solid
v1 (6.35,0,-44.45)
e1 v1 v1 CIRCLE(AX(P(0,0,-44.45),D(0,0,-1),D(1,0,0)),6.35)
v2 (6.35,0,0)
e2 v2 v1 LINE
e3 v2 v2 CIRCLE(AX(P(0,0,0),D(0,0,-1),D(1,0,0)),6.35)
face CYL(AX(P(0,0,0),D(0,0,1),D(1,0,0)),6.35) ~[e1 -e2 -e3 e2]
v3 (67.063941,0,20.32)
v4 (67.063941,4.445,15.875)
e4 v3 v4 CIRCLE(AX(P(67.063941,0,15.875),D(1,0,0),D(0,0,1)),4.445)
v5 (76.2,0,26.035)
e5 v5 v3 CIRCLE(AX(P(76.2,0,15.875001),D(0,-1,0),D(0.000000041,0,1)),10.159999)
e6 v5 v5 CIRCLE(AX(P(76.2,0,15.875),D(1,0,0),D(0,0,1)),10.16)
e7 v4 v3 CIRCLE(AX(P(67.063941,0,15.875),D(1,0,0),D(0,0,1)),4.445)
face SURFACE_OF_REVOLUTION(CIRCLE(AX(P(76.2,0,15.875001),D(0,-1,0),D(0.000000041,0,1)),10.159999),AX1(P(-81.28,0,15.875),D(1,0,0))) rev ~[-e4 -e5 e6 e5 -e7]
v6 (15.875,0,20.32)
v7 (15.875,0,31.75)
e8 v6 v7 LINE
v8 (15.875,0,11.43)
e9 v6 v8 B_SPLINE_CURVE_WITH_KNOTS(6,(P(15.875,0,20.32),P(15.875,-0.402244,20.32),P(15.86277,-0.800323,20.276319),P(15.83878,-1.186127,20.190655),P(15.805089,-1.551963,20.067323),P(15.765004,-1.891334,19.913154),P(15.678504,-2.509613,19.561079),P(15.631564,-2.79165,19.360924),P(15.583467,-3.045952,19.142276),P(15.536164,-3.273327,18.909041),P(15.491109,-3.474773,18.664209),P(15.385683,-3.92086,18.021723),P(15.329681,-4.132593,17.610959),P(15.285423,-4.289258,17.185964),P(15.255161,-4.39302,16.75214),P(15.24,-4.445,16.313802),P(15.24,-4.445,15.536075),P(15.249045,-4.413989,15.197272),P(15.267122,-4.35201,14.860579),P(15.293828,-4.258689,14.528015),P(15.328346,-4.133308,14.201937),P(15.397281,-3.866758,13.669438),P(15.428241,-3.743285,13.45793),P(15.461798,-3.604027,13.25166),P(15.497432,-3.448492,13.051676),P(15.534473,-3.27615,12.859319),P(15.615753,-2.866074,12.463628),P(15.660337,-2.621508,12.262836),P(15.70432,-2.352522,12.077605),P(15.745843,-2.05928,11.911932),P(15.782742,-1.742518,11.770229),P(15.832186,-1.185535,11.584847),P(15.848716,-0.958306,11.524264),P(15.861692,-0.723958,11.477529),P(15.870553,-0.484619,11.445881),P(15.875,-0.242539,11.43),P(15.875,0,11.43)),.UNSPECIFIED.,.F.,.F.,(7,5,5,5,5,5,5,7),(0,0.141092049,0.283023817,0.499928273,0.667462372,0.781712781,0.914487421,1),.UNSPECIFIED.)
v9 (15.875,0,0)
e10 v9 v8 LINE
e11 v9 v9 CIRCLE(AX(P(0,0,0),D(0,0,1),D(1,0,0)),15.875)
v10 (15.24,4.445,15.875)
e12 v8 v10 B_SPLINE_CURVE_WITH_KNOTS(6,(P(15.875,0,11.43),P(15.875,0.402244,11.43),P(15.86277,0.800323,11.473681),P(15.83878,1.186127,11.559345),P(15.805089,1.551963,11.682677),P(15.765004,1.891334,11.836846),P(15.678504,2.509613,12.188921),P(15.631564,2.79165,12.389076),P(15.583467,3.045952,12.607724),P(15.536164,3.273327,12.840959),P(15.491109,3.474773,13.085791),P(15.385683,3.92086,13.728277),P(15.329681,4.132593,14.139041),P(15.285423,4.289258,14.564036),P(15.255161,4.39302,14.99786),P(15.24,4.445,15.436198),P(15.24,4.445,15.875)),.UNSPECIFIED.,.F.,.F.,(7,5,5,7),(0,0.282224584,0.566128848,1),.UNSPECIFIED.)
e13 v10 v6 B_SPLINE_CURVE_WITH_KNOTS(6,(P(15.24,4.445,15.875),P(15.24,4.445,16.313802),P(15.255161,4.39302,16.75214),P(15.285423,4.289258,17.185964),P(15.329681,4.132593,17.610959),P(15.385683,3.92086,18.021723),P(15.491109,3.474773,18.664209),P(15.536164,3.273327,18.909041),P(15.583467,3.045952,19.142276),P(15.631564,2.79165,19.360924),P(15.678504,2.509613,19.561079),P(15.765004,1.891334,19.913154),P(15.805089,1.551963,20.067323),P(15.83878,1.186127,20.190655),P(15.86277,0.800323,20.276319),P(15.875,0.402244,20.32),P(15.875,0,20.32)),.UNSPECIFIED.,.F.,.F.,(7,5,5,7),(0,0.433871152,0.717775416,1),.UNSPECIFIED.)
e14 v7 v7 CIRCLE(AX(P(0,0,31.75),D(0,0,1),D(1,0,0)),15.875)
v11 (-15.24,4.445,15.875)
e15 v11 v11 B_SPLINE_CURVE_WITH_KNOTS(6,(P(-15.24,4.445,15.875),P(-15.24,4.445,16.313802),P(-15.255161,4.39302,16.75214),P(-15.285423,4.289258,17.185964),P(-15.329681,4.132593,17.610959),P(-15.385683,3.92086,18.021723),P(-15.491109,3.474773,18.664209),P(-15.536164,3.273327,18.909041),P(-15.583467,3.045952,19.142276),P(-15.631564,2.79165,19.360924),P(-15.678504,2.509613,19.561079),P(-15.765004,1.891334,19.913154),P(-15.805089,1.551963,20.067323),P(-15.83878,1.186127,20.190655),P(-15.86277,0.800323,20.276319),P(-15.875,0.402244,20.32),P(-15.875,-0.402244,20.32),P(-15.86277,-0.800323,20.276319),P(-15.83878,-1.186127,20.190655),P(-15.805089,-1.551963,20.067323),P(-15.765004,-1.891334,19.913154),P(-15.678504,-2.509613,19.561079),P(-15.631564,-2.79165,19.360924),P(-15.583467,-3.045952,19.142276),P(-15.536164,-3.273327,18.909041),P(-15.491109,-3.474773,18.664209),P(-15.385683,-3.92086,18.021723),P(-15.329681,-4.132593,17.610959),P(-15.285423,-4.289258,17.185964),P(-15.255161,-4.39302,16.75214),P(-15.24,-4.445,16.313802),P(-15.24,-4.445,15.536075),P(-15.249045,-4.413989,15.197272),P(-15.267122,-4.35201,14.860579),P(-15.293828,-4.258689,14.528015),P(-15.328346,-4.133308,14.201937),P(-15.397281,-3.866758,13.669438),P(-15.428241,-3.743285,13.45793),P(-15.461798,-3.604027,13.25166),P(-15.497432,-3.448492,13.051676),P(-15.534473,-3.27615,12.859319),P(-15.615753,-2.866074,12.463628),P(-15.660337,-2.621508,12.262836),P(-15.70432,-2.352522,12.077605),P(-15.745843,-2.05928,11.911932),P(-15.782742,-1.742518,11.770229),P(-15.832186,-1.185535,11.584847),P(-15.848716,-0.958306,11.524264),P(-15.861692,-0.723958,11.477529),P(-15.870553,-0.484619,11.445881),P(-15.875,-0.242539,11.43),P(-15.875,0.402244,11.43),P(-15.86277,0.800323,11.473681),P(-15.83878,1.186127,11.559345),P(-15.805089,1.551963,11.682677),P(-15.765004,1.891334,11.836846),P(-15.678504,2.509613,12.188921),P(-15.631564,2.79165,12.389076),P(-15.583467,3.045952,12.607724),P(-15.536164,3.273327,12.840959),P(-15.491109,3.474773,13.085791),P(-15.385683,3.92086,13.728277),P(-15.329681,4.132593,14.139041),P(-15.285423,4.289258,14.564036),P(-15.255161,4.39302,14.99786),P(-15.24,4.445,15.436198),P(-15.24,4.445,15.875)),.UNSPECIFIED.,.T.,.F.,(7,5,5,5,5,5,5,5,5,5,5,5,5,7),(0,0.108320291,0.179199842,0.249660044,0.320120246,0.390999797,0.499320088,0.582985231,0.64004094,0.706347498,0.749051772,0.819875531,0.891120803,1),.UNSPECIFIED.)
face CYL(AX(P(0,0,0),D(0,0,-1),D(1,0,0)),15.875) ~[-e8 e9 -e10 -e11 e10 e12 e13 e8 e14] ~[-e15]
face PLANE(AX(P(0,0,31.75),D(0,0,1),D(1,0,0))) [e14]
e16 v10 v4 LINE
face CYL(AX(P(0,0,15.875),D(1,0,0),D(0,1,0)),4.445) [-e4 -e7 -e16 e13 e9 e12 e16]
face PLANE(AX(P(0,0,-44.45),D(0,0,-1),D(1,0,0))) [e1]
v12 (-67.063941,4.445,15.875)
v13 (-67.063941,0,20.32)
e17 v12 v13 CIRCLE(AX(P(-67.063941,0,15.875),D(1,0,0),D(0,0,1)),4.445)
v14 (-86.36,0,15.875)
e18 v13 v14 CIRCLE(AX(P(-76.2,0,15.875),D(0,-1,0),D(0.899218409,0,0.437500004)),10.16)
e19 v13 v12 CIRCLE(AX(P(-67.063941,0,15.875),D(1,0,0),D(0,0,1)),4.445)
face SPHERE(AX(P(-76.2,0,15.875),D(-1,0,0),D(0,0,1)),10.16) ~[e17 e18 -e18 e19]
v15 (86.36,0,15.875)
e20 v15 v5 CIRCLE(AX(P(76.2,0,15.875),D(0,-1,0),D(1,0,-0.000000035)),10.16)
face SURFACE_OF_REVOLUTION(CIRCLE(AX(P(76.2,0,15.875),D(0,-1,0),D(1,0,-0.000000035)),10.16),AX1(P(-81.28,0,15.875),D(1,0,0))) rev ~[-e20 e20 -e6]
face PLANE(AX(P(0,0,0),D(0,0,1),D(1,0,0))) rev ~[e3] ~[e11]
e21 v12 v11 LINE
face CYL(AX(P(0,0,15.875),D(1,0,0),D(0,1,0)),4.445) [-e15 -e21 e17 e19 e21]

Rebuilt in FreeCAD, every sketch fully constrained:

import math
import FreeCAD as App
import Part
import Sketcher
Q = App.Units.Quantity

doc = App.newDocument("Part")
body = doc.addObject("PartDesign::Body", "Body")

# Sketch on XY plane
sketch1 = body.newObject("Sketcher::SketchObject", "Sketch")
sketch1.AttachmentSupport = (doc.getObject("XY_Plane"), [""])
sketch1.MapMode = "FlatFace"
sketch1.addGeometry(Part.Circle(App.Vector(0, 0, 0), App.Vector(0, 0, 1), 16), False)
sketch1.addConstraint(Sketcher.Constraint("Coincident", 0, 3, -1, 1))
sketch1.addConstraint(Sketcher.Constraint("Diameter", 0, Q("1.25 in")))
pad1 = body.newObject("PartDesign::Pad", "Pad")
pad1.Profile = sketch1
pad1.Length = Q("1.25 in")

# Sketch on XY plane
sketch2 = body.newObject("Sketcher::SketchObject", "Sketch001")
sketch2.AttachmentSupport = (doc.getObject("XY_Plane"), [""])
sketch2.MapMode = "FlatFace"
sketch2.addGeometry(Part.Circle(App.Vector(0, 0, 0), App.Vector(0, 0, 1), 6), False)
sketch2.addConstraint(Sketcher.Constraint("Coincident", 0, 3, -1, 1))
sketch2.addConstraint(Sketcher.Constraint("Diameter", 0, Q("0.5 in")))
pad2 = body.newObject("PartDesign::Pad", "Pad001")
pad2.Profile = sketch2
pad2.Length = Q("1.75 in")
pad2.Reversed = True

# Sketch on YZ plane
sketch3 = body.newObject("Sketcher::SketchObject", "Sketch002")
sketch3.AttachmentSupport = (doc.getObject("YZ_Plane"), [""])
sketch3.MapMode = "FlatFace"
sketch3.addGeometry(Part.Circle(App.Vector(0, 15.9, 0), App.Vector(0, 0, 1), 4.4), False)
sketch3.addConstraint(Sketcher.Constraint("PointOnObject", 0, 3, -2))
sketch3.addConstraint(Sketcher.Constraint("Diameter", 0, Q("0.35 in")))
sketch3.addConstraint(Sketcher.Constraint("DistanceY", -1, 1, 0, 3, Q("0.625 in")))
pad3 = body.newObject("PartDesign::Pad", "Pad002")
pad3.Profile = sketch3
pad3.Length = Q("6 in")
pad3.Midplane = True

# Sketch on XZ plane
sketch4 = body.newObject("Sketcher::SketchObject", "Sketch003")
sketch4.AttachmentSupport = (doc.getObject("XZ_Plane"), [""])
sketch4.MapMode = "FlatFace"
sketch4.addGeometry(Part.LineSegment(App.Vector(-76.2, 15.9, 0), App.Vector(-76.2, 20.3, 0)), False)
sketch4.addGeometry(Part.LineSegment(App.Vector(-76.2, 20.3, 0), App.Vector(-67.1, 20.3, 0)), False)
sketch4.addGeometry(Part.ArcOfCircle(Part.Circle(App.Vector(-76.2, 15.9, 0), App.Vector(0, 0, 1), 10.2), math.radians(26), math.radians(180)), False)
sketch4.addGeometry(Part.LineSegment(App.Vector(-86.4, 15.9, 0), App.Vector(-76.2, 15.9, 0)), False)
sketch4.addGeometry(Part.LineSegment(App.Vector(76.2, 20.3, 0), App.Vector(76.2, 15.9, 0)), False)
sketch4.addGeometry(Part.LineSegment(App.Vector(76.2, 15.9, 0), App.Vector(86.4, 15.9, 0)), False)
sketch4.addGeometry(Part.ArcOfCircle(Part.Circle(App.Vector(76.2, 15.9, 0), App.Vector(0, 0, 1), 10.2), math.radians(0), math.radians(90)), False)
sketch4.addGeometry(Part.ArcOfCircle(Part.Circle(App.Vector(76.2, 15.9, 0), App.Vector(0, 0, 1), 10.2), math.radians(90), math.radians(154)), False)
sketch4.addGeometry(Part.LineSegment(App.Vector(67.1, 20.3, 0), App.Vector(76.2, 20.3, 0)), False)
sketch4.addGeometry(Part.LineSegment(App.Vector(-86.4, 15.9, 0), App.Vector(86.4, 15.9, 0)), True)  # axis
sketch4.addConstraint(Sketcher.Constraint("Coincident", 0, 2, 1, 1))
sketch4.addConstraint(Sketcher.Constraint("Coincident", 1, 2, 2, 1))
sketch4.addConstraint(Sketcher.Constraint("Coincident", 2, 2, 3, 1))
sketch4.addConstraint(Sketcher.Constraint("Coincident", 3, 2, 0, 1))
sketch4.addConstraint(Sketcher.Constraint("Coincident", 4, 2, 5, 1))
sketch4.addConstraint(Sketcher.Constraint("Coincident", 5, 2, 6, 1))
sketch4.addConstraint(Sketcher.Constraint("Tangent", 6, 2, 7, 1))
sketch4.addConstraint(Sketcher.Constraint("Coincident", 7, 2, 8, 1))
sketch4.addConstraint(Sketcher.Constraint("Coincident", 8, 2, 4, 1))
sketch4.addConstraint(Sketcher.Constraint("Vertical", 0))
sketch4.addConstraint(Sketcher.Constraint("Horizontal", 1))
sketch4.addConstraint(Sketcher.Constraint("Horizontal", 3))
sketch4.addConstraint(Sketcher.Constraint("Vertical", 4))
sketch4.addConstraint(Sketcher.Constraint("Horizontal", 5))
sketch4.addConstraint(Sketcher.Constraint("Horizontal", 8))
sketch4.addConstraint(Sketcher.Constraint("Horizontal", 9))
sketch4.addConstraint(Sketcher.Constraint("Coincident", 3, 2, 2, 3))
sketch4.addConstraint(Sketcher.Constraint("Coincident", 4, 2, 6, 3))
sketch4.addConstraint(Sketcher.Constraint("Coincident", 9, 1, 2, 2))
sketch4.addConstraint(Sketcher.Constraint("Coincident", 9, 2, 5, 2))
sketch4.addConstraint(Sketcher.Constraint("Equal", 2, 6))
sketch4.addConstraint(Sketcher.Constraint("Equal", 6, 7))
sketch4.addConstraint(Sketcher.Constraint("Symmetric", 1, 2, 7, 2, -2))
sketch4.addConstraint(Sketcher.Constraint("Vertical", 4, 2, 6, 2))
sketch4.addConstraint(Sketcher.Constraint("Radius", 2, Q("0.4 in")))
sketch4.addConstraint(Sketcher.Constraint("DistanceX", 9, 1, 9, 2, Q("6.8 in")))
sketch4.addConstraint(Sketcher.Constraint("DistanceY", -1, 1, 0, 2, Q("0.8 in")))
sketch4.addConstraint(Sketcher.Constraint("DistanceY", 0, 1, 0, 2, Q("0.175 in")))
revolution = body.newObject("PartDesign::Revolution", "Revolution")
revolution.Profile = sketch4
revolution.ReferenceAxis = (sketch4, ["Axis0"])
revolution.Angle = 360

doc.recompute()
